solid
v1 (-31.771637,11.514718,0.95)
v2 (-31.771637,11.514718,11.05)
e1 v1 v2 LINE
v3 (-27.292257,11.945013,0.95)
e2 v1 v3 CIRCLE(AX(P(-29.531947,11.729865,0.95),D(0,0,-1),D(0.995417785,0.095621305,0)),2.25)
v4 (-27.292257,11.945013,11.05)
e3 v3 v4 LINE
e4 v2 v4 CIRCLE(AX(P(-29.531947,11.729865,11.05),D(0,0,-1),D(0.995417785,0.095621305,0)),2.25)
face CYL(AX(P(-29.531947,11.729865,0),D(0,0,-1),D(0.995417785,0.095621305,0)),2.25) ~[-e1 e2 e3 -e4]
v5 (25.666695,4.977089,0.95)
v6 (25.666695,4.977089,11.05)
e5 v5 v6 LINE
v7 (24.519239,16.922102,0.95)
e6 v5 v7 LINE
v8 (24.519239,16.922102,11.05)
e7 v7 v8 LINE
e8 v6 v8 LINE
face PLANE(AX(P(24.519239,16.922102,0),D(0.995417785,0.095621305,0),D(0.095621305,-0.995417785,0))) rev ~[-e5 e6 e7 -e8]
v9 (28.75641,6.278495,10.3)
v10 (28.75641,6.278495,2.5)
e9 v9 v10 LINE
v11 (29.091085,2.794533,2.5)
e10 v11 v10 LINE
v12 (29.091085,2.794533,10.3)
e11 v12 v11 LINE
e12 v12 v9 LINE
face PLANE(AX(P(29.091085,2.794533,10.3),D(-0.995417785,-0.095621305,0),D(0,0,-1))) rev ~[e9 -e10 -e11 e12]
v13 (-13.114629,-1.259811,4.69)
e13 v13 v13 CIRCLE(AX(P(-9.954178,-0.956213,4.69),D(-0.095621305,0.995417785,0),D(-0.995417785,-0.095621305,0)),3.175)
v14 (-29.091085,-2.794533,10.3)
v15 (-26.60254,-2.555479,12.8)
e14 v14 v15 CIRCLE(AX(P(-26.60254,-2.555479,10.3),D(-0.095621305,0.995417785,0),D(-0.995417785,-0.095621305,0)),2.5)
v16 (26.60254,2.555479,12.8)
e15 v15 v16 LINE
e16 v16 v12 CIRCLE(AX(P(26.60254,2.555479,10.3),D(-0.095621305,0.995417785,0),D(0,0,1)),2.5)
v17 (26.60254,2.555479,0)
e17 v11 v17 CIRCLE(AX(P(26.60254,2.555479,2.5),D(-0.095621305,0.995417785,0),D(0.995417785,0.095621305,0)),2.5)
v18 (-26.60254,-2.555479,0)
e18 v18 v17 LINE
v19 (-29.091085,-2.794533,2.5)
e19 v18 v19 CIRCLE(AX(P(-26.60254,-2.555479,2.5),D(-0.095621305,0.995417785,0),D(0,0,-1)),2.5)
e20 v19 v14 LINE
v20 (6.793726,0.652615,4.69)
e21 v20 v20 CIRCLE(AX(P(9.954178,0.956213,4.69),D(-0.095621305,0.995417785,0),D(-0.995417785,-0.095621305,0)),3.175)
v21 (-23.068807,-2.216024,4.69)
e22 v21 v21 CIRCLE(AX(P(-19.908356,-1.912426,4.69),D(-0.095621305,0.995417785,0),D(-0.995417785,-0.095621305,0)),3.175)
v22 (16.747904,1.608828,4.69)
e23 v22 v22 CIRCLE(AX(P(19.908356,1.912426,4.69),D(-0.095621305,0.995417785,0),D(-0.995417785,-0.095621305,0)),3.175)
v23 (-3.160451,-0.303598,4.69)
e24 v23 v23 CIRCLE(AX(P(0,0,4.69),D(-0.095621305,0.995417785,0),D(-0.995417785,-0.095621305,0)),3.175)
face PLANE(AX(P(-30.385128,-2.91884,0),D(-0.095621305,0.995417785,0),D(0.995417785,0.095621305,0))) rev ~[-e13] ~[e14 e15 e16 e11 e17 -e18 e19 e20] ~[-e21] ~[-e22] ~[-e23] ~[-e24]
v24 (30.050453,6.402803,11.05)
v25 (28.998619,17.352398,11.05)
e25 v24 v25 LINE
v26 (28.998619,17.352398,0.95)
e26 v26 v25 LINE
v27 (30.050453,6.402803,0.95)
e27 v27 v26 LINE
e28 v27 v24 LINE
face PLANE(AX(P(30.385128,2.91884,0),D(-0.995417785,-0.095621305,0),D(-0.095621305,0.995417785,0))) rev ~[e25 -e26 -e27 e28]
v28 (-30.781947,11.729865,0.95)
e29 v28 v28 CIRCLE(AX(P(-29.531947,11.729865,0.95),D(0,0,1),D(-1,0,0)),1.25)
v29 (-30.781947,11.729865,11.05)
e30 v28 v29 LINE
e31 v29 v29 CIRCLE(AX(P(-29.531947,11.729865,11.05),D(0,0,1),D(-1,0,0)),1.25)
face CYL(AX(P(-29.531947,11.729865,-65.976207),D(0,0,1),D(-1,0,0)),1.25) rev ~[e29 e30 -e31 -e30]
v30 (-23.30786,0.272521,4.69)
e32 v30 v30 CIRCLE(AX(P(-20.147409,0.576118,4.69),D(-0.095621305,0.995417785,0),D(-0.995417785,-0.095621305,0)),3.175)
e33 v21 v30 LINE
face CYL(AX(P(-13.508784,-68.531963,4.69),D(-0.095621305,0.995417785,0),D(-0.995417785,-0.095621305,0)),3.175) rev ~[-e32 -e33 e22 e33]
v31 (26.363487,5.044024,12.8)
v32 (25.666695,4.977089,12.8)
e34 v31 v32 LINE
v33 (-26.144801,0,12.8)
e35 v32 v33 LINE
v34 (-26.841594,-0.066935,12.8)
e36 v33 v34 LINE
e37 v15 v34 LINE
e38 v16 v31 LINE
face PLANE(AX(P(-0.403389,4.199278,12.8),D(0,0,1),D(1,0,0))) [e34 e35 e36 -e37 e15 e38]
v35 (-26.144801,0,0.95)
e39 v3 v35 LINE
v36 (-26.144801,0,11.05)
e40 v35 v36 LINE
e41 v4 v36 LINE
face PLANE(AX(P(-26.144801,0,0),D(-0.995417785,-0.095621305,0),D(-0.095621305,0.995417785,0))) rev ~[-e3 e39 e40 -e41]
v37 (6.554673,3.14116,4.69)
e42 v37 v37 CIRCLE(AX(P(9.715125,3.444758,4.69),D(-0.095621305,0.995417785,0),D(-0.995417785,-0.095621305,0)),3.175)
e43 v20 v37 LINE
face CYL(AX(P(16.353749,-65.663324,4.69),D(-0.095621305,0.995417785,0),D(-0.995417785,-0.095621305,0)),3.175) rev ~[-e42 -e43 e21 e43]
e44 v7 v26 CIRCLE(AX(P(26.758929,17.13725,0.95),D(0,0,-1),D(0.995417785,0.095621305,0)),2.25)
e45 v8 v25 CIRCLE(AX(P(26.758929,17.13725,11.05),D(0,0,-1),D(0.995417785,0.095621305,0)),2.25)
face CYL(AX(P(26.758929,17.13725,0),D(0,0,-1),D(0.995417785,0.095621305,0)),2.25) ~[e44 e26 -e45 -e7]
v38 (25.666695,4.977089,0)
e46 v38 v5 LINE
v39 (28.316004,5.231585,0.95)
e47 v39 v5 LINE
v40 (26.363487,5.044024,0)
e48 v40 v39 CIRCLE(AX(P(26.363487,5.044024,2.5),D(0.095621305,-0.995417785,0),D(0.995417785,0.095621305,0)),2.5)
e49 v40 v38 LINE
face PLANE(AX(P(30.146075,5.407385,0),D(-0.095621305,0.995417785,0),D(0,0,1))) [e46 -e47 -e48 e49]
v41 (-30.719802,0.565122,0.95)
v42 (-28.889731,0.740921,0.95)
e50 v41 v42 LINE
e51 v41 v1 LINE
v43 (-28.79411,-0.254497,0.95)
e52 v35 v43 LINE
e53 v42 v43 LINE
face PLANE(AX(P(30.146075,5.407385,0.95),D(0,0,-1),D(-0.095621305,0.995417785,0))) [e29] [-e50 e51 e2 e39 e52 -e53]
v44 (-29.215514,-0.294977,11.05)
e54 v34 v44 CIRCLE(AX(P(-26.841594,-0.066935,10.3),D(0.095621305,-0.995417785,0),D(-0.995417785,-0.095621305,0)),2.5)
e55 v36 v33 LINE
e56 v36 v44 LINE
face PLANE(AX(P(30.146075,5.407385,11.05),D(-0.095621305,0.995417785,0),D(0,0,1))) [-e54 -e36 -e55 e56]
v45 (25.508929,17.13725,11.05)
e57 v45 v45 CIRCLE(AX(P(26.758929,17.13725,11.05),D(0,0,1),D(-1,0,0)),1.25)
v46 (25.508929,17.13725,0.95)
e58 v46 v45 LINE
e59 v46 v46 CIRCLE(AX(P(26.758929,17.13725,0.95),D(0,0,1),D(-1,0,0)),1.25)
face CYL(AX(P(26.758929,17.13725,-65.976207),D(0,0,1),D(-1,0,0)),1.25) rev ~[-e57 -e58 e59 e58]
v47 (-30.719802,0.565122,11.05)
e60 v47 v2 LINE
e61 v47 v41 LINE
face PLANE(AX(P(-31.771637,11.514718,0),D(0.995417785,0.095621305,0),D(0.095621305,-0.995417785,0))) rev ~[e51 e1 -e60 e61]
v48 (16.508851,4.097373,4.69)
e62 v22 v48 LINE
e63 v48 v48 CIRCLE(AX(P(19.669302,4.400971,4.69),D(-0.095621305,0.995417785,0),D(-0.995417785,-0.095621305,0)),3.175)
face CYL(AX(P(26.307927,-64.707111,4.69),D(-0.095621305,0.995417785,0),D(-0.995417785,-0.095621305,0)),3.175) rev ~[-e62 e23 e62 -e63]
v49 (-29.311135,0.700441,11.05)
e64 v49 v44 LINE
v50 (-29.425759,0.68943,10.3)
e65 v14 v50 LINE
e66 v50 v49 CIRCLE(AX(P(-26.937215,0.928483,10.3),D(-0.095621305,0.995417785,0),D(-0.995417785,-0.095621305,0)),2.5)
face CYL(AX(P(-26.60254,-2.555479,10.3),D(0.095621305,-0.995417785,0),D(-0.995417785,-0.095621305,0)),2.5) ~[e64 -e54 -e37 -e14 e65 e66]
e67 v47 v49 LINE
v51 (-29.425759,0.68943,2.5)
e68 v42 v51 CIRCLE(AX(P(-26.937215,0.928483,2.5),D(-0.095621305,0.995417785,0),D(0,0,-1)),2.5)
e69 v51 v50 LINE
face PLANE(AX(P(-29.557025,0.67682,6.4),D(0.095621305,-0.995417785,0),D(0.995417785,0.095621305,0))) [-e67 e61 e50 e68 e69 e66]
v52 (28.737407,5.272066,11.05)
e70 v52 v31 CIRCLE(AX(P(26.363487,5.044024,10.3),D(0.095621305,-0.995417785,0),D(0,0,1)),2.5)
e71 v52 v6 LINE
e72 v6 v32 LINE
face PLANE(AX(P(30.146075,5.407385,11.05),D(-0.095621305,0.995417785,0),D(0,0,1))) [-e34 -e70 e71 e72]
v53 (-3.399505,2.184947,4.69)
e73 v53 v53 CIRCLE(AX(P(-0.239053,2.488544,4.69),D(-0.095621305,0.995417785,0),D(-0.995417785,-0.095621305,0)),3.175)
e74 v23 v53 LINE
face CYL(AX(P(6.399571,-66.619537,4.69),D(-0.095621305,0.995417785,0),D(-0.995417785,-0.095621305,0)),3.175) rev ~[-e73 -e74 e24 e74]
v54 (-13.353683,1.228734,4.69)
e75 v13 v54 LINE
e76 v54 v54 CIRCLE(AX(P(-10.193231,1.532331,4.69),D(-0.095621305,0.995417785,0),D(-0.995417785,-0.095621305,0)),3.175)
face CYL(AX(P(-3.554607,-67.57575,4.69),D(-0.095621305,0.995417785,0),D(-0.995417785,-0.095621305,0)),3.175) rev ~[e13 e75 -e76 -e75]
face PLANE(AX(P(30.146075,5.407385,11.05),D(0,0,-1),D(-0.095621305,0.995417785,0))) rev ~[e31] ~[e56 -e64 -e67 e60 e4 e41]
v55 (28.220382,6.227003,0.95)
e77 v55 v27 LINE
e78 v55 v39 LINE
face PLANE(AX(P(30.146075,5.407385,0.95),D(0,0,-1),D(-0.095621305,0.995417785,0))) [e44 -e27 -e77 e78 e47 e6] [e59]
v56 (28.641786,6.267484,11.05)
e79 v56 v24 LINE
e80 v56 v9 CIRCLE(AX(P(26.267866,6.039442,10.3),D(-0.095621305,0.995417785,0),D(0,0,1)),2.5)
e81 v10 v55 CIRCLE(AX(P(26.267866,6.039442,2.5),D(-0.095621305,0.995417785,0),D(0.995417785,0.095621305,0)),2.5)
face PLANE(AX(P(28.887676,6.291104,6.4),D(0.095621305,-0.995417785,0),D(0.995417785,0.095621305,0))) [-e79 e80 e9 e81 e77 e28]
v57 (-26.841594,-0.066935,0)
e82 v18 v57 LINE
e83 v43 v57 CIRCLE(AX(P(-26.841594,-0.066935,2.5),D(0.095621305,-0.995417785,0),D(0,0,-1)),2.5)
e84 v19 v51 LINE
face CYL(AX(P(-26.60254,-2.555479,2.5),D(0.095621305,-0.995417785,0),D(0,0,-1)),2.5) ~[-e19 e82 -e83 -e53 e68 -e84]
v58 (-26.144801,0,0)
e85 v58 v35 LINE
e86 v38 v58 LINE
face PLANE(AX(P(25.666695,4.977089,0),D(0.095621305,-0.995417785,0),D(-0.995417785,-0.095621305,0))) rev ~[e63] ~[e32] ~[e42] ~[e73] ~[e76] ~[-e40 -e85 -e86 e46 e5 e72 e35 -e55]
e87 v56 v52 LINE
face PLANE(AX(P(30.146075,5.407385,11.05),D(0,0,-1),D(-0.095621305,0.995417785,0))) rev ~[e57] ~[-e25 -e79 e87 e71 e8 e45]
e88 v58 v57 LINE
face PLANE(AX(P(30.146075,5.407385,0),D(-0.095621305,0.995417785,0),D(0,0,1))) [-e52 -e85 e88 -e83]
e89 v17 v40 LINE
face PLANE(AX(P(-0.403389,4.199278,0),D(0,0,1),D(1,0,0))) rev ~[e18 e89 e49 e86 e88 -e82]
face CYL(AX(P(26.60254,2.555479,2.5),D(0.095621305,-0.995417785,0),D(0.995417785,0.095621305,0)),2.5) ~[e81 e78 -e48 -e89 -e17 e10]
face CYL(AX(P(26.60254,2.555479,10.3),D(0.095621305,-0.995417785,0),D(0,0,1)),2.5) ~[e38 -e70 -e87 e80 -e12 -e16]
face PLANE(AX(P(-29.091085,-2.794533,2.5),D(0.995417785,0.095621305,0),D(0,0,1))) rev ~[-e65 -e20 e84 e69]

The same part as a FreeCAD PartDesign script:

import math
import FreeCAD as App
import Part
import Sketcher
Q = App.Units.Quantity

doc = App.newDocument("Part")
params = doc.addObject("Spreadsheet::Sheet", "Params")
for row, (alias, value) in enumerate([
    ("sketch1_radius", "2.25 mm"),
    ("sketch1_length", "12 mm"),
    ("sketch1_length2", "14.5 mm"),
    ("sketch1_length3", "61.05 mm"),
    ("pad1_length", "12.8 mm"),
    ("sketch2_radius", "2.5 mm"),
    ("sketch2_width", "3.8 mm"),
    ("sketch2_height", "12.8 mm"),
    ("pocket1_length", "3.5 mm"),
    ("sketch3_height", "1.75 mm"),
    ("sketch3_height2", "0.95 mm"),
    ("sketch4_diameter", "2.5 mm"),
    ("hole_diameter", "2.5 mm"),
    ("sketch5_diameter", "6.35 mm"),
    ("hole2_diameter", "6.35 mm"),
], start=1):
    params.set(f"A{row}", alias)
    params.set(f"B{row}", "=" + value)
    params.setAlias(f"B{row}", alias)

body = doc.addObject("PartDesign::Body", "Body")

sketch1 = body.newObject("Sketcher::SketchObject", "Sketch")
sketch1.AttachmentSupport = (doc.getObject("XY_Plane"), [""])
sketch1.MapMode = "FlatFace"
sketch1.addGeometry([
    Part.ArcOfCircle(Part.Circle(App.Vector(-29.5, 11.7, 0), App.Vector(0, 0, 1), 2.2), math.radians(5), math.radians(185)),
    Part.LineSegment(App.Vector(-31.8, 11.5, 0), App.Vector(-30.4, -2.9, 0)),
    Part.LineSegment(App.Vector(-30.4, -2.9, 0), App.Vector(30.4, 2.9, 0)),
    Part.LineSegment(App.Vector(30.4, 2.9, 0), App.Vector(29, 17.4, 0)),
    Part.ArcOfCircle(Part.Circle(App.Vector(26.8, 17.1, 0), App.Vector(0, 0, 1), 2.2), math.radians(5), math.radians(185)),
    Part.LineSegment(App.Vector(24.5, 16.9, 0), App.Vector(25.7, 5, 0)),
    Part.LineSegment(App.Vector(25.7, 5, 0), App.Vector(-26.1, 0, 0)),
    Part.LineSegment(App.Vector(-26.1, 0, 0), App.Vector(-27.3, 11.9, 0)),
], False)
sketch1.addConstraint([
    Sketcher.Constraint("Tangent", 0, 2, 1, 1),
    Sketcher.Constraint("Coincident", 1, 2, 2, 1),
    Sketcher.Constraint("Coincident", 2, 2, 3, 1),
    Sketcher.Constraint("Tangent", 3, 2, 4, 1),
    Sketcher.Constraint("Tangent", 4, 2, 5, 1),
    Sketcher.Constraint("Coincident", 5, 2, 6, 1),
    Sketcher.Constraint("Coincident", 6, 2, 7, 1),
    Sketcher.Constraint("Tangent", 7, 2, 0, 1),
    Sketcher.Constraint("Equal", 0, 4),
    Sketcher.Constraint("Symmetric", 1, 2, 2, 2, -1, 1),
    Sketcher.Constraint("PointOnObject", 6, 2, -1),
    Sketcher.Constraint("Perpendicular", 1, 2),
    Sketcher.Constraint("Perpendicular", 2, 3),
    Sketcher.Constraint("Parallel", 3, 5),
    Sketcher.Constraint("Perpendicular", 5, 6),
    Sketcher.Constraint("Perpendicular", 6, 7),
    Sketcher.Constraint("Equal", 1, 3),
    Sketcher.Constraint("Radius", 0, Q("2.25 mm")),
    Sketcher.Constraint("Distance", 5, Q("12 mm")),
    Sketcher.Constraint("Distance", 1, Q("14.5 mm")),
    Sketcher.Constraint("Distance", 2, Q("61.05 mm")),
])
sketch1.setExpression("Constraints[17]", "Params.sketch1_radius")
sketch1.setExpression("Constraints[18]", "Params.sketch1_length")
sketch1.setExpression("Constraints[19]", "Params.sketch1_length2")
sketch1.setExpression("Constraints[20]", "Params.sketch1_length3")
pad1 = body.newObject("PartDesign::Pad", "Pad")
pad1.Profile = sketch1
pad1.setExpression("Length", "Params.pad1_length")

sketch2 = body.newObject("Sketcher::SketchObject", "Sketch001")
sketch2.Placement = App.Placement(App.Vector(0, 0, 0), App.Rotation(App.Vector(0.995417785, 0.095621305, 0), App.Vector(0, 0, 1.000000001), App.Vector(0.095621305, -0.995417785, 0), "ZXY"))
sketch2.addGeometry([
    Part.ArcOfCircle(Part.Circle(App.Vector(-26.7, 10.3, 0), App.Vector(0, 0, 1), 2.5), math.radians(90), math.radians(180)),
    Part.LineSegment(App.Vector(-26.7, 12.8, 0), App.Vector(-30.5, 12.8, 0)),
    Part.LineSegment(App.Vector(-30.5, 12.8, 0), App.Vector(-30.5, 0, 0)),
    Part.LineSegment(App.Vector(-30.5, 0, 0), App.Vector(-26.7, 0, 0)),
    Part.ArcOfCircle(Part.Circle(App.Vector(-26.7, 2.5, 0), App.Vector(0, 0, 1), 2.5), math.radians(180), math.radians(270)),
    Part.LineSegment(App.Vector(-29.2, 2.5, 0), App.Vector(-29.2, 10.3, 0)),
    Part.LineSegment(App.Vector(30.5, 12.8, 0), App.Vector(26.7, 12.8, 0)),
    Part.ArcOfCircle(Part.Circle(App.Vector(26.7, 10.3, 0), App.Vector(0, 0, 1), 2.5), math.radians(0), math.radians(90)),
    Part.LineSegment(App.Vector(29.2, 10.3, 0), App.Vector(29.2, 2.5, 0)),
    Part.ArcOfCircle(Part.Circle(App.Vector(26.7, 2.5, 0), App.Vector(0, 0, 1), 2.5), math.radians(-90), math.radians(0)),
    Part.LineSegment(App.Vector(26.7, 0, 0), App.Vector(30.5, 0, 0)),
    Part.LineSegment(App.Vector(30.5, 0, 0), App.Vector(30.5, 12.8, 0)),
], False)
sketch2.addConstraint([
    Sketcher.Constraint("Tangent", 0, 1, 1, 1),
    Sketcher.Constraint("Coincident", 1, 2, 2, 1),
    Sketcher.Constraint("Coincident", 2, 2, 3, 1),
    Sketcher.Constraint("Tangent", 3, 2, 4, 2),
    Sketcher.Constraint("Tangent", 4, 1, 5, 1),
    Sketcher.Constraint("Tangent", 5, 2, 0, 2),
    Sketcher.Constraint("Tangent", 6, 2, 7, 2),
    Sketcher.Constraint("Tangent", 7, 1, 8, 1),
    Sketcher.Constraint("Tangent", 8, 2, 9, 2),
    Sketcher.Constraint("Tangent", 9, 1, 10, 1),
    Sketcher.Constraint("Coincident", 10, 2, 11, 1),
    Sketcher.Constraint("Coincident", 11, 2, 6, 1),
    Sketcher.Constraint("Horizontal", 1),
    Sketcher.Constraint("Vertical", 2),
    Sketcher.Constraint("Horizontal", 3),
    Sketcher.Constraint("Vertical", 5),
    Sketcher.Constraint("Horizontal", 6),
    Sketcher.Constraint("Vertical", 8),
    Sketcher.Constraint("Horizontal", 10),
    Sketcher.Constraint("Vertical", 11),
    Sketcher.Constraint("Equal", 0, 4),
    Sketcher.Constraint("Equal", 4, 7),
    Sketcher.Constraint("Equal", 7, 9),
    Sketcher.Constraint("Symmetric", 3, 2, 9, 1, -1, 1),
    Sketcher.Constraint("Symmetric", 2, 2, 10, 2, -2),
    Sketcher.Constraint("Horizontal", 0, 3, 7, 3),
    Sketcher.Constraint("Radius", 0, Q("2.5 mm")),
    Sketcher.Constraint("DistanceX", 1, 2, 1, 1, Q("3.8 mm")),
    Sketcher.Constraint("DistanceY", 2, 2, 2, 1, Q("12.8 mm")),
    Sketcher.Constraint("DistanceX", 0, 3, 7, 3, Q("53.45 mm")),
])
sketch2.setExpression("Constraints[26]", "Params.sketch2_radius")
sketch2.setExpression("Constraints[27]", "Params.sketch2_width")
sketch2.setExpression("Constraints[28]", "Params.sketch2_height")
pocket1 = body.newObject("PartDesign::Pocket", "Pocket")
pocket1.Profile = sketch2
pocket1.setExpression("Length", "Params.pocket1_length")

sketch3 = body.newObject("Sketcher::SketchObject", "Sketch002")
sketch3.Placement = App.Placement(App.Vector(30.385128, 2.91884, 0), App.Rotation(App.Vector(-0.095621305, 0.995417785, 0), App.Vector(0, 0, 1.000000001), App.Vector(0.995417785, 0.095621305, 0), "ZXY"))
sketch3.addGeometry([
    Part.LineSegment(App.Vector(2.5, 12.8, 0), App.Vector(2.5, 11.1, 0)),
    Part.LineSegment(App.Vector(2.5, 11.1, 0), App.Vector(21.4, 11.1, 0)),
    Part.LineSegment(App.Vector(21.4, 11.1, 0), App.Vector(21.4, 12.8, 0)),
    Part.LineSegment(App.Vector(21.4, 12.8, 0), App.Vector(2.5, 12.8, 0)),
    Part.LineSegment(App.Vector(2.5, 1, 0), App.Vector(2.5, 0, 0)),
    Part.LineSegment(App.Vector(2.5, 0, 0), App.Vector(24.8, 0, 0)),
    Part.LineSegment(App.Vector(24.8, 0, 0), App.Vector(24.8, 1, 0)),
    Part.LineSegment(App.Vector(24.8, 1, 0), App.Vector(2.5, 1, 0)),
], False)
sketch3.addConstraint([
    Sketcher.Constraint("Coincident", 0, 2, 1, 1),
    Sketcher.Constraint("Coincident", 1, 2, 2, 1),
    Sketcher.Constraint("Coincident", 2, 2, 3, 1),
    Sketcher.Constraint("Coincident", 3, 2, 0, 1),
    Sketcher.Constraint("Coincident", 4, 2, 5, 1),
    Sketcher.Constraint("Coincident", 5, 2, 6, 1),
    Sketcher.Constraint("Coincident", 6, 2, 7, 1),
    Sketcher.Constraint("Coincident", 7, 2, 4, 1),
    Sketcher.Constraint("Vertical", 0),
    Sketcher.Constraint("Horizontal", 1),
    Sketcher.Constraint("Vertical", 2),
    Sketcher.Constraint("Horizontal", 3),
    Sketcher.Constraint("Vertical", 4),
    Sketcher.Constraint("Horizontal", 5),
    Sketcher.Constraint("Vertical", 6),
    Sketcher.Constraint("Horizontal", 7),
    Sketcher.Constraint("PointOnObject", 4, 2, -1),
    Sketcher.Constraint("Vertical", 3, 2, 4, 2),
    Sketcher.Constraint("DistanceY", 0, 2, 0, 1, Q("1.75 mm")),
    Sketcher.Constraint("DistanceY", 4, 2, 4, 1, Q("0.95 mm")),
    Sketcher.Constraint("DistanceX", -1, 1, 0, 2, Q("2.5 mm")),
    Sketcher.Constraint("DistanceY", -1, 1, 2, 2, Q("12.8 mm")),
    Sketcher.Constraint("DistanceX", 5, 1, 5, 2, Q("22.278089 mm")),
    Sketcher.Constraint("DistanceX", 1, 1, 1, 2, Q("18.907084 mm")),
])
sketch3.setExpression("Constraints[18]", "Params.sketch3_height")
sketch3.setExpression("Constraints[19]", "Params.sketch3_height2")
pocket2 = body.newObject("PartDesign::Pocket", "Pocket001")
pocket2.Profile = sketch3
pocket2.Type = "ThroughAll"

sketch4 = body.newObject("Sketcher::SketchObject", "Sketch003")
sketch4.AttachmentSupport = (doc.getObject("XY_Plane"), [""])
sketch4.MapMode = "FlatFace"
sketch4.AttachmentOffset = App.Placement(App.Vector(0, 0, 0.95), App.Rotation())
sketch4.addGeometry([
    Part.Circle(App.Vector(26.8, 17.1, 0), App.Vector(0, 0, 1), 1.2),
    Part.Circle(App.Vector(-29.5, 11.7, 0), App.Vector(0, 0, 1), 1.2),
], False)
sketch4.addConstraint([
    Sketcher.Constraint("Equal", 0, 1),
    Sketcher.Constraint("Diameter", 0, Q("2.5 mm")),
    Sketcher.Constraint("DistanceX", -1, 1, 0, 3, Q("26.758929 mm")),
    Sketcher.Constraint("DistanceY", -1, 1, 0, 3, Q("17.13725 mm")),
    Sketcher.Constraint("DistanceX", 1, 3, -1, 1, Q("29.531947 mm")),
    Sketcher.Constraint("DistanceY", -1, 1, 1, 3, Q("11.729865 mm")),
])
sketch4.setExpression("Constraints[1]", "Params.sketch4_diameter")
doc.recompute()
hole = body.newObject("PartDesign::Hole", "Hole")
hole.Profile = sketch4
hole.ThreadType = "None"
hole.setExpression("Diameter", "Params.hole_diameter")
hole.DepthType = "ThroughAll"
hole.Reversed = True

sketch5 = body.newObject("Sketcher::SketchObject", "Sketch004")
sketch5.Placement = App.Placement(App.Vector(0, 0, 0), App.Rotation(App.Vector(0.995417785, 0.095621305, 0), App.Vector(0, 0, 1.000000001), App.Vector(0.095621305, -0.995417785, 0), "ZXY"))
sketch5.addGeometry([
    Part.Circle(App.Vector(-20, 4.7, 0), App.Vector(0, 0, 1), 3.2),
    Part.Circle(App.Vector(-10, 4.7, 0), App.Vector(0, 0, 1), 3.2),
    Part.Circle(App.Vector(0, 4.7, 0), App.Vector(0, 0, 1), 3.2),
    Part.Circle(App.Vector(10, 4.7, 0), App.Vector(0, 0, 1), 3.2),
    Part.Circle(App.Vector(20, 4.7, 0), App.Vector(0, 0, 1), 3.2),
], False)
sketch5.addConstraint([
    Sketcher.Constraint("Equal", 0, 1),
    Sketcher.Constraint("Equal", 1, 2),
    Sketcher.Constraint("Equal", 2, 3),
    Sketcher.Constraint("Equal", 3, 4),
    Sketcher.Constraint("Symmetric", 1, 3, 3, 3, -2),
    Sketcher.Constraint("Symmetric", 0, 3, 4, 3, -2),
    Sketcher.Constraint("PointOnObject", 2, 3, -2),
    Sketcher.Constraint("Horizontal", 0, 3, 1, 3),
    Sketcher.Constraint("Horizontal", 1, 3, 2, 3),
    Sketcher.Constraint("Diameter", 0, Q("6.35 mm")),
    Sketcher.Constraint("DistanceX", 0, 3, -1, 1, Q("20 mm")),
    Sketcher.Constraint("DistanceX", 1, 3, -1, 1, Q("10 mm")),
    Sketcher.Constraint("DistanceY", -1, 1, 0, 3, Q("4.69 mm")),
])
sketch5.setExpression("Constraints[9]", "Params.sketch5_diameter")
doc.recompute()
hole2 = body.newObject("PartDesign::Hole", "Hole001")
hole2.Profile = sketch5
hole2.ThreadType = "None"
hole2.setExpression("Diameter", "Params.hole2_diameter")
hole2.DepthType = "ThroughAll"

doc.recompute()
